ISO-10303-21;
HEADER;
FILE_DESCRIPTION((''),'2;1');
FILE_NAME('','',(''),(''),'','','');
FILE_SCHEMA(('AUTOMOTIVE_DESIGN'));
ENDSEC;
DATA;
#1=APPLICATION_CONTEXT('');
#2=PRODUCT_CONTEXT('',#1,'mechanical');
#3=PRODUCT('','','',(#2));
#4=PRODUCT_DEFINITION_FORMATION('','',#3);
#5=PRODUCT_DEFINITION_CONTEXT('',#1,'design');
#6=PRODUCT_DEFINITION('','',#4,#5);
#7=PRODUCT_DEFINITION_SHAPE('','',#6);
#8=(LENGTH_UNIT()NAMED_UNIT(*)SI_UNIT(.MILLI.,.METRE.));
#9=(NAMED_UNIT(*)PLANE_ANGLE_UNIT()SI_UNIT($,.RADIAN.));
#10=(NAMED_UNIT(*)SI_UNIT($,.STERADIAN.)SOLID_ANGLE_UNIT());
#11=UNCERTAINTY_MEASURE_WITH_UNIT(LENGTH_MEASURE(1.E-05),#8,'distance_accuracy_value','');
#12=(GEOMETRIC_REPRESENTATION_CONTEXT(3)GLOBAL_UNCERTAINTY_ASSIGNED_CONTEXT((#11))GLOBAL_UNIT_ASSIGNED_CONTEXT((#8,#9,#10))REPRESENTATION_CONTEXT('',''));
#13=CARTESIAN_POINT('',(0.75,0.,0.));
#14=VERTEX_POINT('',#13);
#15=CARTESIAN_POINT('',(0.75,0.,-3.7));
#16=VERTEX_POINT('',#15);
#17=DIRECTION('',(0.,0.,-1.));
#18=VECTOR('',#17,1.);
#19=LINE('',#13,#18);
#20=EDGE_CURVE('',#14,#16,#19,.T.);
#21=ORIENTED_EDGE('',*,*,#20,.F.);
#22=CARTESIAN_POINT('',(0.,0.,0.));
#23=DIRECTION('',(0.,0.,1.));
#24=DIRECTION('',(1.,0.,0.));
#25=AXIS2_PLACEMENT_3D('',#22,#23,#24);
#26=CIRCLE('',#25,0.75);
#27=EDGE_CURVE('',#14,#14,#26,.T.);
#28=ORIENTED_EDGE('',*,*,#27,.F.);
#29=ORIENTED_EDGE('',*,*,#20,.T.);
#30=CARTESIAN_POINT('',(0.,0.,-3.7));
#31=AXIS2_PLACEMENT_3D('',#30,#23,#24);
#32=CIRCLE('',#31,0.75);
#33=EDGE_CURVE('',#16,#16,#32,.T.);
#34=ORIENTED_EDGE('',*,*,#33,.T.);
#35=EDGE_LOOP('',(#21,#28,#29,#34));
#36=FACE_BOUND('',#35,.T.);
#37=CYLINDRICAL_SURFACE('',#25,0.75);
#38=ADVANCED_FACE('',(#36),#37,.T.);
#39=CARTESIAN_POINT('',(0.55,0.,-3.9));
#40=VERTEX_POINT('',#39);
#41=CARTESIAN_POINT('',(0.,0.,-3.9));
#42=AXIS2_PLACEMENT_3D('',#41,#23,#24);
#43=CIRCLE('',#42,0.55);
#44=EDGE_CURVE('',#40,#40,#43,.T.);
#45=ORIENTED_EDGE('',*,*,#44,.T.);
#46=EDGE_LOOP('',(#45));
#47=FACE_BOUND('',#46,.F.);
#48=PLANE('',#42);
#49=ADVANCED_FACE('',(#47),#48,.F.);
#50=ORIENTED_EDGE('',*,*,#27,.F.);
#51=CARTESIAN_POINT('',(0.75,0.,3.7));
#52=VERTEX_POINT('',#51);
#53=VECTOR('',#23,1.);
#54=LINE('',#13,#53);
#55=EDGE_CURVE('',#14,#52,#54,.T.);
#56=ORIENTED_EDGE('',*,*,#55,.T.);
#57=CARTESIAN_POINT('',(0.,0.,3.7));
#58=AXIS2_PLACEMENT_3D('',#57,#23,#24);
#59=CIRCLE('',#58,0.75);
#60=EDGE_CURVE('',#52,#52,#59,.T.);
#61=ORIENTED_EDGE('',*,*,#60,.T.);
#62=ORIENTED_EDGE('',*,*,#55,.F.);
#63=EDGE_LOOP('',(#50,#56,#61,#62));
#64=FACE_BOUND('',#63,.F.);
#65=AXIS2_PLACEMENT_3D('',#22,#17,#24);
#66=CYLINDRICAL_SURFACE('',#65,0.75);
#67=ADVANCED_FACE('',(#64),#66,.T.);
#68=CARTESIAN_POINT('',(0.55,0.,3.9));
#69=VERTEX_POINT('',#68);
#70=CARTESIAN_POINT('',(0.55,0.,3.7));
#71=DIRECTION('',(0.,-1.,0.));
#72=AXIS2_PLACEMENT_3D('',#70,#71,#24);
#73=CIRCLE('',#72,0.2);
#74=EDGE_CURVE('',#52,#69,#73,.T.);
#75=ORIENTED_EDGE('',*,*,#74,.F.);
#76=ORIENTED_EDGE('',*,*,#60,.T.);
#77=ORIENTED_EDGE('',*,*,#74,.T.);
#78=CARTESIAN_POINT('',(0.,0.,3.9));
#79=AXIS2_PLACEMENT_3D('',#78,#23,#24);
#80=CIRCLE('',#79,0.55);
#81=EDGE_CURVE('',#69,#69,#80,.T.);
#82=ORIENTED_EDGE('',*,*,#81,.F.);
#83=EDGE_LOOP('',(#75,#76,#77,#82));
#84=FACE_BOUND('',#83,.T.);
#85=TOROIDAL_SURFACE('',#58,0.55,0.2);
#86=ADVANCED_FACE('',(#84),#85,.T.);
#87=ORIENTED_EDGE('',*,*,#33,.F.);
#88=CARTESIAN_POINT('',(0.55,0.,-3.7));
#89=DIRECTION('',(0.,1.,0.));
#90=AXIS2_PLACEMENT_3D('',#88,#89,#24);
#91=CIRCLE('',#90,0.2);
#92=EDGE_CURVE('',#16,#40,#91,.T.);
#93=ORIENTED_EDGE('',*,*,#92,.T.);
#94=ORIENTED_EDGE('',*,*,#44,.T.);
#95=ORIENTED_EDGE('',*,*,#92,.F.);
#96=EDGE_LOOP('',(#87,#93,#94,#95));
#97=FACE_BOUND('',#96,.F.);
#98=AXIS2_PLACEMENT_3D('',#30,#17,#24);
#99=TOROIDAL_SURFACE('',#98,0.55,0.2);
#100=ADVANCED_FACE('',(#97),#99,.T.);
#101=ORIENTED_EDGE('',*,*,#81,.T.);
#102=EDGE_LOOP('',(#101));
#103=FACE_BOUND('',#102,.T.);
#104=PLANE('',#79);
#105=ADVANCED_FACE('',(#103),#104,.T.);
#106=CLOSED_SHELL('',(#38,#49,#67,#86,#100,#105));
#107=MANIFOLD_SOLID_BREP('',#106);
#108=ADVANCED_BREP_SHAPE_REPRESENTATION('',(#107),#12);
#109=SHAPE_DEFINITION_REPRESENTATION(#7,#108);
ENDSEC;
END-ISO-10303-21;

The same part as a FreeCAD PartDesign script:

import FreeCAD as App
import Part
import Sketcher

V = App.Vector
Q = App.Units.Quantity


def edges_at(feature, points):
    """Names of the edges that pass closest to the given points."""
    edges = feature.Shape.Edges
    near = lambda p: min(range(len(edges)), key=lambda i: edges[i].distToShape(Part.Vertex(*p))[0])
    return sorted({f"Edge{near(p) + 1}" for p in points})

doc = App.newDocument("Part")
params = doc.addObject("Spreadsheet::Sheet", "Params")
for row, (alias, value) in enumerate([
    ("sketch1_diameter", "1.5 mm"),
    ("pad1_length", "7.8 mm"),
    ("fillet_radius", "0.2 mm"),
], start=1):
    params.set(f"A{row}", alias)
    params.set(f"B{row}", "=" + value)
    params.setAlias(f"B{row}", alias)

body = doc.addObject("PartDesign::Body", "Body")

# Sketch on XY plane
sketch1 = body.newObject("Sketcher::SketchObject", "Sketch")
sketch1.AttachmentSupport = (doc.getObject("XY_Plane"), [""])
sketch1.MapMode = "FlatFace"
sketch1.addGeometry(Part.Circle(V(0, 0, 0), V(0, 0, 1), 0.8), False)
sketch1.addConstraint([
    Sketcher.Constraint("Coincident", 0, 3, -1, 1),
    Sketcher.Constraint("Diameter", 0, Q("1.5 mm")),
])
sketch1.setExpression("Constraints[1]", "Params.sketch1_diameter")
pad1 = body.newObject("PartDesign::Pad", "Pad")
pad1.Profile = sketch1
pad1.setExpression("Length", "Params.pad1_length")
pad1.Midplane = True
doc.recompute()

fillet = body.newObject("PartDesign::Fillet", "Fillet")
fillet.Base = (pad1, edges_at(pad1, [(-0.75, 0, 3.9), (-0.75, 0, -3.9)]))
fillet.setExpression("Radius", "Params.fillet_radius")

doc.recompute()
